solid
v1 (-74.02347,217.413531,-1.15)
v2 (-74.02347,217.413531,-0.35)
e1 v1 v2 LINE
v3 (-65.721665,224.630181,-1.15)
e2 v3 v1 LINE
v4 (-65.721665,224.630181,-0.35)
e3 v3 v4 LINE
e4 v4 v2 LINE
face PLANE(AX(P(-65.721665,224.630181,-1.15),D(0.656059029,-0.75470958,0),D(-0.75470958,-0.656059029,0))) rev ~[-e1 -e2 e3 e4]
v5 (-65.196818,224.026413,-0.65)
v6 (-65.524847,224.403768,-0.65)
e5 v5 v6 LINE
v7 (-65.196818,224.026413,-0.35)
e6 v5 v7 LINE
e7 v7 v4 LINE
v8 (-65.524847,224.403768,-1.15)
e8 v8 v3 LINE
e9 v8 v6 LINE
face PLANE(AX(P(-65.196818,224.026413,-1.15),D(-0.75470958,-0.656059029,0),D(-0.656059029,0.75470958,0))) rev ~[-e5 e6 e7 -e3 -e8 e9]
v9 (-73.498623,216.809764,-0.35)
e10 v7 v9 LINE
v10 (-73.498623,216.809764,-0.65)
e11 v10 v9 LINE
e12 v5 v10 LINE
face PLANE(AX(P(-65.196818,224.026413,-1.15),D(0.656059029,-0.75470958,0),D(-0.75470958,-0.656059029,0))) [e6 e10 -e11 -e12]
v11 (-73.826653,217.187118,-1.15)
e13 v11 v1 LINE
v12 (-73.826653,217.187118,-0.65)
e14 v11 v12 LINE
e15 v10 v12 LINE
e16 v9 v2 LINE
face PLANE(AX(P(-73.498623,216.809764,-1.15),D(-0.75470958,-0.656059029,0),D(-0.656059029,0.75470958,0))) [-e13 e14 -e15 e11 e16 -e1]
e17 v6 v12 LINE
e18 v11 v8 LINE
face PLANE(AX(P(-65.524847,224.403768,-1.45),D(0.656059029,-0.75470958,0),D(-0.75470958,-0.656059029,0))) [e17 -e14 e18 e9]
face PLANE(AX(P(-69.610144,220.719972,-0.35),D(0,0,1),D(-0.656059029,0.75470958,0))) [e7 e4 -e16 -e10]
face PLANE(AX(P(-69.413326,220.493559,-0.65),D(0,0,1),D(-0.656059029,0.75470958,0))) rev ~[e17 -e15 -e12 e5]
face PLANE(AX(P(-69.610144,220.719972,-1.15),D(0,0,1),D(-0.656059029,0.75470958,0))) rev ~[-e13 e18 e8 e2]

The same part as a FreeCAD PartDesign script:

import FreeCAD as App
import Part
import Sketcher
Q = App.Units.Quantity


def add_polygon(sketch, points):
    """Adds a closed chain of lines whose ends are joined by coincident constraints."""
    first, n = sketch.GeometryCount, len(points)
    for a, b in zip(points, points[1:] + points[:1]):
        sketch.addGeometry(Part.LineSegment(App.Vector(*a, 0), App.Vector(*b, 0)), False)
    for i in range(n):
        sketch.addConstraint(Sketcher.Constraint("Coincident", first + i, 2, first + (i + 1) % n, 1))

doc = App.newDocument("Part")
body = doc.addObject("PartDesign::Body", "Body")

sketch1 = body.newObject("Sketcher::SketchObject", "Sketch")
sketch1.AttachmentSupport = (doc.getObject("XY_Plane"), [""])
sketch1.MapMode = "FlatFace"
add_polygon(sketch1, [(0, 11), (0, 0), (0.8, 0), (0.8, 11)])
sketch1.addConstraint(Sketcher.Constraint("Vertical", 0))
sketch1.addConstraint(Sketcher.Constraint("Horizontal", 1))
sketch1.addConstraint(Sketcher.Constraint("Vertical", 2))
sketch1.addConstraint(Sketcher.Constraint("Horizontal", 3))
sketch1.addConstraint(Sketcher.Constraint("Coincident", 0, 2, -1, 1))
sketch1.addConstraint(Sketcher.Constraint("DistanceY", 0, 2, 0, 1, Q("11 mm")))
sketch1.addConstraint(Sketcher.Constraint("DistanceX", 1, 1, 1, 2, Q("0.8 mm")))
pad1 = body.newObject("PartDesign::Pad", "Pad")
pad1.Profile = sketch1
pad1.Length = 0.8
body2 = doc.addObject("PartDesign::Body", "Body001")

sketch2 = body2.newObject("Sketcher::SketchObject", "Sketch001")
sketch2.AttachmentSupport = (doc.getObject("XY_Plane001"), [""])
sketch2.MapMode = "FlatFace"
sketch2.AttachmentOffset = App.Placement(App.Vector(0, 0, 0.3), App.Rotation())
add_polygon(sketch2, [(0.3, 11), (0.3, 0), (1.1, 0), (1.1, 11)])
sketch2.addConstraint(Sketcher.Constraint("Vertical", 0))
sketch2.addConstraint(Sketcher.Constraint("Horizontal", 1))
sketch2.addConstraint(Sketcher.Constraint("Vertical", 2))
sketch2.addConstraint(Sketcher.Constraint("Horizontal", 3))
sketch2.addConstraint(Sketcher.Constraint("PointOnObject", 0, 2, -1))
sketch2.addConstraint(Sketcher.Constraint("DistanceY", 0, 2, 0, 1, Q("11 mm")))
sketch2.addConstraint(Sketcher.Constraint("DistanceX", 1, 1, 1, 2, Q("0.8 mm")))
sketch2.addConstraint(Sketcher.Constraint("DistanceX", -1, 1, 0, 2, Q("0.3 mm")))
pad2 = body2.newObject("PartDesign::Pad", "Pad001")
pad2.Profile = sketch2
pad2.Length = 0.8
doc.recompute()

boolean = body2.newObject("PartDesign::Boolean", "Boolean")
boolean.Type = "Cut"
boolean.addObjects([body])
body3 = doc.addObject("PartDesign::Body", "Body002")
doc.recompute()

body2.Placement = App.Placement(App.Vector(-65, 223.8, -1.45), App.Rotation(App.Vector(0, 0, 1), 131))
boolean2 = body3.newObject("PartDesign::Boolean", "Boolean001")
boolean2.Type = "Fuse"
boolean2.addObjects([body2])

doc.recompute()
